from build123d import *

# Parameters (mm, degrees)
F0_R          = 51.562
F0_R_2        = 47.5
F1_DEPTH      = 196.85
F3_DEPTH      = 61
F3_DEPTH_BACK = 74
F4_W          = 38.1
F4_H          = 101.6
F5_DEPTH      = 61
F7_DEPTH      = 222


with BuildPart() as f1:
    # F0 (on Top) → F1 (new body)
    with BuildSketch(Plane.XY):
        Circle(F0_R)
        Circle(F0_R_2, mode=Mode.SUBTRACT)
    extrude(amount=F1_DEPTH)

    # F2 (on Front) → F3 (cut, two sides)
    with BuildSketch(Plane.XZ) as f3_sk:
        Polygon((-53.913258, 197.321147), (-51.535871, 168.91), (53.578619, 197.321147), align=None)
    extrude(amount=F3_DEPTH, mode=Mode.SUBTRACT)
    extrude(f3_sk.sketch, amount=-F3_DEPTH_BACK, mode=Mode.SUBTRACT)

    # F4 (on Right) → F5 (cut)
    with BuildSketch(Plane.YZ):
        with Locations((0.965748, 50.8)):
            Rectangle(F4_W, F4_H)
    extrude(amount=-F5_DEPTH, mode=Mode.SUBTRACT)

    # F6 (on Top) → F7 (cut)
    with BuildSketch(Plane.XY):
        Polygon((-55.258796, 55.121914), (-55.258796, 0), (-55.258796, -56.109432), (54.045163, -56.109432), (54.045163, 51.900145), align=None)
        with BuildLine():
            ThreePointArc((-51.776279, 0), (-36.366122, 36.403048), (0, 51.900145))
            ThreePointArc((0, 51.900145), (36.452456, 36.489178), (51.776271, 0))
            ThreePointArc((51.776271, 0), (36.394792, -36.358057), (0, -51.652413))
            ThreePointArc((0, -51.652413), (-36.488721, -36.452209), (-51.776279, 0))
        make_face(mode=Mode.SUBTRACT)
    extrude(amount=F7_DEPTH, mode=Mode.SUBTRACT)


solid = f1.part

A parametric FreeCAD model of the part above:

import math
import FreeCAD as App
import Part
import Sketcher

V = App.Vector
Q = App.Units.Quantity


def add_polygon(sketch, points):
    """Adds a closed chain of lines whose ends are joined by coincident constraints."""
    first, n = sketch.GeometryCount, len(points)
    for a, b in zip(points, points[1:] + points[:1]):
        sketch.addGeometry(Part.LineSegment(App.Vector(*a, 0), App.Vector(*b, 0)), False)
    for i in range(n):
        sketch.addConstraint(Sketcher.Constraint("Coincident", first + i, 2, first + (i + 1) % n, 1))

doc = App.newDocument("Part")
body = doc.addObject("PartDesign::Body", "Body")

sketch1 = body.newObject("Sketcher::SketchObject", "Sketch")
sketch1.AttachmentSupport = (doc.getObject("XY_Plane"), [""])
sketch1.MapMode = "FlatFace"
sketch1.addGeometry([
    Part.Circle(V(0, 0, 0), V(0, 0, 1), 51.562),
    Part.Circle(V(0, 0, 0), V(0, 0, 1), 47.5),
], False)
sketch1.addConstraint([
    Sketcher.Constraint("Coincident", 0, 3, -1, 1),
    Sketcher.Constraint("Coincident", 1, 3, -1, 1),
    Sketcher.Constraint("Diameter", 0, Q("4.06 in")),
    Sketcher.Constraint("Diameter", 1, 95.0),
])
pad1 = body.newObject("PartDesign::Pad", "Pad")
pad1.Profile = sketch1
pad1.Length = Q("7.75 in")

sketch2 = body.newObject("Sketcher::SketchObject", "Sketch001")
sketch2.AttachmentSupport = (doc.getObject("XZ_Plane"), [""])
sketch2.MapMode = "FlatFace"
add_polygon(sketch2, [(-53.913258, 197.321147), (-51.535871, 168.91), (53.578619, 197.321147)])
sketch2.addConstraint([
    Sketcher.Constraint("Horizontal", 2),
    Sketcher.Constraint("DistanceY", -1, 1, 0, 2, Q("6.65 in")),
    Sketcher.Constraint("Distance", 0, 28.510441),
    Sketcher.Constraint("DistanceX", 2, 2, 2, 1, 107.491877),
    Sketcher.Constraint("DistanceX", 0, 2, -1, 1, 51.535871),
    Sketcher.Constraint("DistanceX", -1, 1, 1, 2, 53.578619),
])
pocket1 = body.newObject("PartDesign::Pocket", "Pocket")
pocket1.Profile = sketch2
pocket1.Type = "ThroughAll"
pocket1.Midplane = True

sketch3 = body.newObject("Sketcher::SketchObject", "Sketch002")
sketch3.AttachmentSupport = (doc.getObject("YZ_Plane"), [""])
sketch3.MapMode = "FlatFace"
add_polygon(sketch3, [(-18.084252, 101.6), (-18.084252, 0), (20.015748, 0), (20.015748, 101.6)])
sketch3.addConstraint([
    Sketcher.Constraint("Vertical", 0),
    Sketcher.Constraint("Horizontal", 1),
    Sketcher.Constraint("Vertical", 2),
    Sketcher.Constraint("Horizontal", 3),
    Sketcher.Constraint("PointOnObject", 0, 2, -1),
    Sketcher.Constraint("DistanceY", 0, 2, 0, 1, Q("4 in")),
    Sketcher.Constraint("DistanceX", 1, 1, 1, 2, Q("1.5 in")),
    Sketcher.Constraint("DistanceX", 0, 2, -1, 1, 18.084252),
])
pocket2 = body.newObject("PartDesign::Pocket", "Pocket001")
pocket2.Profile = sketch3
pocket2.Length = 61

sketch4 = body.newObject("Sketcher::SketchObject", "Sketch003")
sketch4.AttachmentSupport = (doc.getObject("XY_Plane"), [""])
sketch4.MapMode = "FlatFace"
add_polygon(sketch4, [(-55.258796, 55.121914), (-55.258796, -56.109432), (54.045163, -56.109432), (54.045163, 51.900145)])
sketch4.addGeometry(Part.ArcOfCircle(Part.Circle(V(0.271775, 0.396441, 0), V(0, 0, 1), 52.049564), math.radians(-179.563596), math.radians(-90.299169)), False)
sketch4.addGeometry(Part.ArcOfCircle(Part.Circle(V(1.007217, -0.881095, 0), V(0, 0, 1), 52.790849), math.radians(91.093234), math.radians(179.043672)), False)
sketch4.addGeometry(Part.ArcOfCircle(Part.Circle(V(-0.701431, -0.576031, 0), V(0, 0, 1), 52.480863), math.radians(0.628892), math.radians(89.234192)), False)
sketch4.addGeometry(Part.ArcOfCircle(Part.Circle(V(-0.599982, 0.725428, 0), V(0, 0, 1), 52.381277), math.radians(-89.343712), math.radians(-0.793514)), False)
sketch4.addConstraint([
    Sketcher.Constraint("Coincident", 4, 1, 5, 2),
    Sketcher.Constraint("Coincident", 5, 1, 6, 2),
    Sketcher.Constraint("Coincident", 6, 1, 7, 2),
    Sketcher.Constraint("Coincident", 7, 1, 4, 2),
    Sketcher.Constraint("Vertical", 0),
    Sketcher.Constraint("Horizontal", 1),
    Sketcher.Constraint("Vertical", 2),
    Sketcher.Constraint("PointOnObject", 4, 1, -1),
    Sketcher.Constraint("PointOnObject", 5, 1, -2),
    Sketcher.Constraint("PointOnObject", 6, 1, -1),
    Sketcher.Constraint("PointOnObject", 7, 1, -2),
    Sketcher.Constraint("Radius", 5, 52.790849),
    Sketcher.Constraint("DistanceX", -1, 1, 4, 3, Q("0.0106998 in")),
    Sketcher.Constraint("Radius", 4, 52.049564),
    Sketcher.Constraint("Radius", 6, 52.480863),
    Sketcher.Constraint("Radius", 7, 52.381277),
    Sketcher.Constraint("DistanceX", 1, 1, 1, 2, 109.303959),
    Sketcher.Constraint("DistanceX", 7, 3, 5, 3, 1.607199),
    Sketcher.Constraint("DistanceY", 0, 2, 6, 3, 55.533401),
    Sketcher.Constraint("Distance", 3, 109.35143),
    Sketcher.Constraint("DistanceY", 0, 2, 0, 1, 111.231346),
    Sketcher.Constraint("DistanceY", -1, 1, 4, 3, 0.396441),
    Sketcher.Constraint("DistanceY", 6, 3, -1, 1, 0.576031),
    Sketcher.Constraint("DistanceX", 0, 2, 4, 3, 55.530571),
])
pocket3 = body.newObject("PartDesign::Pocket", "Pocket002")
pocket3.Profile = sketch4
pocket3.Length = 222
pocket3.Reversed = True

doc.recompute()
